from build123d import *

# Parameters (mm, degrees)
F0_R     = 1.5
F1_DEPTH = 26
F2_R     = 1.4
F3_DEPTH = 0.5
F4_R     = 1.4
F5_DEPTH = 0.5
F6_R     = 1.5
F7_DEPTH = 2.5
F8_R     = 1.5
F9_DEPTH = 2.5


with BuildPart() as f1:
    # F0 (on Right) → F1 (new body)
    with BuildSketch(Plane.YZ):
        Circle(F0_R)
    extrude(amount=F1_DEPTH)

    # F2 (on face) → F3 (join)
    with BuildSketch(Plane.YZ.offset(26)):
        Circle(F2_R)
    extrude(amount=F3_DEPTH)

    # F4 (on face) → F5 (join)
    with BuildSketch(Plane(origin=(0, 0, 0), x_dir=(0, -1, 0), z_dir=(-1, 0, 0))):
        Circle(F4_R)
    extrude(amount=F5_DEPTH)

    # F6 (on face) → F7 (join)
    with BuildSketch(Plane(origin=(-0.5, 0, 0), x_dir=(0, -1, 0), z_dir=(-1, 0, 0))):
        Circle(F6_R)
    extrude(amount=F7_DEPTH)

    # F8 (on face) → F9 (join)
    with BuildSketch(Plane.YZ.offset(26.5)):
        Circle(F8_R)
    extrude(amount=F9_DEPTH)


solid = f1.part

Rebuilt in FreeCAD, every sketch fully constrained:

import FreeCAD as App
import Part
import Sketcher
Q = App.Units.Quantity

doc = App.newDocument("Part")
body = doc.addObject("PartDesign::Body", "Body")

# Sketch on YZ plane
sketch1 = body.newObject("Sketcher::SketchObject", "Sketch")
sketch1.AttachmentSupport = (doc.getObject("YZ_Plane"), [""])
sketch1.MapMode = "FlatFace"
sketch1.addGeometry(Part.Circle(App.Vector(0, 0, 0), App.Vector(0, 0, 1), 1.5), False)
sketch1.addConstraint([
    Sketcher.Constraint("Coincident", 0, 3, -1, 1),
    Sketcher.Constraint("Diameter", 0, Q("3 mm")),
])
pad1 = body.newObject("PartDesign::Pad", "Pad")
pad1.Profile = sketch1
pad1.Length = 26

# Sketch on YZ plane
sketch2 = body.newObject("Sketcher::SketchObject", "Sketch001")
sketch2.AttachmentSupport = (doc.getObject("YZ_Plane"), [""])
sketch2.MapMode = "FlatFace"
sketch2.AttachmentOffset = App.Placement(App.Vector(0, 0, 26), App.Rotation())
sketch2.addGeometry(Part.Circle(App.Vector(0, 0, 0), App.Vector(0, 0, 1), 1.4), False)
sketch2.addConstraint([
    Sketcher.Constraint("Coincident", 0, 3, -1, 1),
    Sketcher.Constraint("Diameter", 0, Q("2.8 mm")),
])
pad2 = body.newObject("PartDesign::Pad", "Pad001")
pad2.Profile = sketch2
pad2.Length = 0.5

# Sketch on YZ plane
sketch3 = body.newObject("Sketcher::SketchObject", "Sketch002")
sketch3.AttachmentSupport = (doc.getObject("YZ_Plane"), [""])
sketch3.MapMode = "FlatFace"
sketch3.addGeometry(Part.Circle(App.Vector(0, 0, 0), App.Vector(0, 0, 1), 1.4), False)
sketch3.addConstraint([
    Sketcher.Constraint("Coincident", 0, 3, -1, 1),
    Sketcher.Constraint("Diameter", 0, Q("2.8 mm")),
])
pad3 = body.newObject("PartDesign::Pad", "Pad002")
pad3.Profile = sketch3
pad3.Length = 0.5
pad3.Reversed = True

# Sketch on YZ plane
sketch4 = body.newObject("Sketcher::SketchObject", "Sketch003")
sketch4.AttachmentSupport = (doc.getObject("YZ_Plane"), [""])
sketch4.MapMode = "FlatFace"
sketch4.AttachmentOffset = App.Placement(App.Vector(0, 0, -0.5), App.Rotation())
sketch4.addGeometry(Part.Circle(App.Vector(0, 0, 0), App.Vector(0, 0, 1), 1.5), False)
sketch4.addConstraint([
    Sketcher.Constraint("Coincident", 0, 3, -1, 1),
    Sketcher.Constraint("Diameter", 0, Q("3 mm")),
])
pad4 = body.newObject("PartDesign::Pad", "Pad003")
pad4.Profile = sketch4
pad4.Length = 2.5
pad4.Reversed = True

# Sketch on YZ plane
sketch5 = body.newObject("Sketcher::SketchObject", "Sketch004")
sketch5.AttachmentSupport = (doc.getObject("YZ_Plane"), [""])
sketch5.MapMode = "FlatFace"
sketch5.AttachmentOffset = App.Placement(App.Vector(0, 0, 26.5), App.Rotation())
sketch5.addGeometry(Part.Circle(App.Vector(0, 0, 0), App.Vector(0, 0, 1), 1.5), False)
sketch5.addConstraint([
    Sketcher.Constraint("Coincident", 0, 3, -1, 1),
    Sketcher.Constraint("Diameter", 0, Q("3 mm")),
])
pad5 = body.newObject("PartDesign::Pad", "Pad004")
pad5.Profile = sketch5
pad5.Length = 2.5

doc.recompute()
